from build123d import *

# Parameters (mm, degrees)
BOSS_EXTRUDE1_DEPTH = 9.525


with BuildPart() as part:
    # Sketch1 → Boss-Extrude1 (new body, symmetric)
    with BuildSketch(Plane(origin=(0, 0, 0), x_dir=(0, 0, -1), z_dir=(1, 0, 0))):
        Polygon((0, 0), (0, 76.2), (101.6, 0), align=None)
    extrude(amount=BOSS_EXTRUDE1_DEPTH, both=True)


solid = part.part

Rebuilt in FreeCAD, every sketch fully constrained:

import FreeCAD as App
import Part
import Sketcher
from FreeCAD import Vector
Q = App.Units.Quantity

doc = App.newDocument("Part")
body = doc.addObject("PartDesign::Body", "Body")

sketch1 = doc.addObject("Sketcher::SketchObject", "Sketch")
body.addObject(sketch1)
sketch1.AttachmentSupport = (doc.YZ_Plane, [""])
sketch1.MapMode = "FlatFace"
sketch1.addGeometry([
    Part.LineSegment(Vector(76, 0, 0), Vector(0, 0, 0)),
    Part.LineSegment(Vector(0, 0, 0), Vector(0, -102, 0)),
    Part.LineSegment(Vector(0, -102, 0), Vector(76, 0, 0)),
], False)
sketch1.addConstraint([
    Sketcher.Constraint("Coincident", 0, 2, 1, 1),
    Sketcher.Constraint("Coincident", 1, 2, 2, 1),
    Sketcher.Constraint("Coincident", 2, 2, 0, 1),
    Sketcher.Constraint("Horizontal", 0),
    Sketcher.Constraint("Vertical", 1),
    Sketcher.Constraint("Coincident", 0, 2, -1, 1),
    Sketcher.Constraint("DistanceX", 0, 2, 0, 1, Q("3 in")),
    Sketcher.Constraint("DistanceY", 1, 2, 1, 1, Q("4 in")),
])
pad1 = doc.addObject("PartDesign::Pad", "Pad")
body.addObject(pad1)
pad1.Profile = sketch1
pad1.Length = Q("0.75 in")
pad1.Midplane = True

doc.recompute()
